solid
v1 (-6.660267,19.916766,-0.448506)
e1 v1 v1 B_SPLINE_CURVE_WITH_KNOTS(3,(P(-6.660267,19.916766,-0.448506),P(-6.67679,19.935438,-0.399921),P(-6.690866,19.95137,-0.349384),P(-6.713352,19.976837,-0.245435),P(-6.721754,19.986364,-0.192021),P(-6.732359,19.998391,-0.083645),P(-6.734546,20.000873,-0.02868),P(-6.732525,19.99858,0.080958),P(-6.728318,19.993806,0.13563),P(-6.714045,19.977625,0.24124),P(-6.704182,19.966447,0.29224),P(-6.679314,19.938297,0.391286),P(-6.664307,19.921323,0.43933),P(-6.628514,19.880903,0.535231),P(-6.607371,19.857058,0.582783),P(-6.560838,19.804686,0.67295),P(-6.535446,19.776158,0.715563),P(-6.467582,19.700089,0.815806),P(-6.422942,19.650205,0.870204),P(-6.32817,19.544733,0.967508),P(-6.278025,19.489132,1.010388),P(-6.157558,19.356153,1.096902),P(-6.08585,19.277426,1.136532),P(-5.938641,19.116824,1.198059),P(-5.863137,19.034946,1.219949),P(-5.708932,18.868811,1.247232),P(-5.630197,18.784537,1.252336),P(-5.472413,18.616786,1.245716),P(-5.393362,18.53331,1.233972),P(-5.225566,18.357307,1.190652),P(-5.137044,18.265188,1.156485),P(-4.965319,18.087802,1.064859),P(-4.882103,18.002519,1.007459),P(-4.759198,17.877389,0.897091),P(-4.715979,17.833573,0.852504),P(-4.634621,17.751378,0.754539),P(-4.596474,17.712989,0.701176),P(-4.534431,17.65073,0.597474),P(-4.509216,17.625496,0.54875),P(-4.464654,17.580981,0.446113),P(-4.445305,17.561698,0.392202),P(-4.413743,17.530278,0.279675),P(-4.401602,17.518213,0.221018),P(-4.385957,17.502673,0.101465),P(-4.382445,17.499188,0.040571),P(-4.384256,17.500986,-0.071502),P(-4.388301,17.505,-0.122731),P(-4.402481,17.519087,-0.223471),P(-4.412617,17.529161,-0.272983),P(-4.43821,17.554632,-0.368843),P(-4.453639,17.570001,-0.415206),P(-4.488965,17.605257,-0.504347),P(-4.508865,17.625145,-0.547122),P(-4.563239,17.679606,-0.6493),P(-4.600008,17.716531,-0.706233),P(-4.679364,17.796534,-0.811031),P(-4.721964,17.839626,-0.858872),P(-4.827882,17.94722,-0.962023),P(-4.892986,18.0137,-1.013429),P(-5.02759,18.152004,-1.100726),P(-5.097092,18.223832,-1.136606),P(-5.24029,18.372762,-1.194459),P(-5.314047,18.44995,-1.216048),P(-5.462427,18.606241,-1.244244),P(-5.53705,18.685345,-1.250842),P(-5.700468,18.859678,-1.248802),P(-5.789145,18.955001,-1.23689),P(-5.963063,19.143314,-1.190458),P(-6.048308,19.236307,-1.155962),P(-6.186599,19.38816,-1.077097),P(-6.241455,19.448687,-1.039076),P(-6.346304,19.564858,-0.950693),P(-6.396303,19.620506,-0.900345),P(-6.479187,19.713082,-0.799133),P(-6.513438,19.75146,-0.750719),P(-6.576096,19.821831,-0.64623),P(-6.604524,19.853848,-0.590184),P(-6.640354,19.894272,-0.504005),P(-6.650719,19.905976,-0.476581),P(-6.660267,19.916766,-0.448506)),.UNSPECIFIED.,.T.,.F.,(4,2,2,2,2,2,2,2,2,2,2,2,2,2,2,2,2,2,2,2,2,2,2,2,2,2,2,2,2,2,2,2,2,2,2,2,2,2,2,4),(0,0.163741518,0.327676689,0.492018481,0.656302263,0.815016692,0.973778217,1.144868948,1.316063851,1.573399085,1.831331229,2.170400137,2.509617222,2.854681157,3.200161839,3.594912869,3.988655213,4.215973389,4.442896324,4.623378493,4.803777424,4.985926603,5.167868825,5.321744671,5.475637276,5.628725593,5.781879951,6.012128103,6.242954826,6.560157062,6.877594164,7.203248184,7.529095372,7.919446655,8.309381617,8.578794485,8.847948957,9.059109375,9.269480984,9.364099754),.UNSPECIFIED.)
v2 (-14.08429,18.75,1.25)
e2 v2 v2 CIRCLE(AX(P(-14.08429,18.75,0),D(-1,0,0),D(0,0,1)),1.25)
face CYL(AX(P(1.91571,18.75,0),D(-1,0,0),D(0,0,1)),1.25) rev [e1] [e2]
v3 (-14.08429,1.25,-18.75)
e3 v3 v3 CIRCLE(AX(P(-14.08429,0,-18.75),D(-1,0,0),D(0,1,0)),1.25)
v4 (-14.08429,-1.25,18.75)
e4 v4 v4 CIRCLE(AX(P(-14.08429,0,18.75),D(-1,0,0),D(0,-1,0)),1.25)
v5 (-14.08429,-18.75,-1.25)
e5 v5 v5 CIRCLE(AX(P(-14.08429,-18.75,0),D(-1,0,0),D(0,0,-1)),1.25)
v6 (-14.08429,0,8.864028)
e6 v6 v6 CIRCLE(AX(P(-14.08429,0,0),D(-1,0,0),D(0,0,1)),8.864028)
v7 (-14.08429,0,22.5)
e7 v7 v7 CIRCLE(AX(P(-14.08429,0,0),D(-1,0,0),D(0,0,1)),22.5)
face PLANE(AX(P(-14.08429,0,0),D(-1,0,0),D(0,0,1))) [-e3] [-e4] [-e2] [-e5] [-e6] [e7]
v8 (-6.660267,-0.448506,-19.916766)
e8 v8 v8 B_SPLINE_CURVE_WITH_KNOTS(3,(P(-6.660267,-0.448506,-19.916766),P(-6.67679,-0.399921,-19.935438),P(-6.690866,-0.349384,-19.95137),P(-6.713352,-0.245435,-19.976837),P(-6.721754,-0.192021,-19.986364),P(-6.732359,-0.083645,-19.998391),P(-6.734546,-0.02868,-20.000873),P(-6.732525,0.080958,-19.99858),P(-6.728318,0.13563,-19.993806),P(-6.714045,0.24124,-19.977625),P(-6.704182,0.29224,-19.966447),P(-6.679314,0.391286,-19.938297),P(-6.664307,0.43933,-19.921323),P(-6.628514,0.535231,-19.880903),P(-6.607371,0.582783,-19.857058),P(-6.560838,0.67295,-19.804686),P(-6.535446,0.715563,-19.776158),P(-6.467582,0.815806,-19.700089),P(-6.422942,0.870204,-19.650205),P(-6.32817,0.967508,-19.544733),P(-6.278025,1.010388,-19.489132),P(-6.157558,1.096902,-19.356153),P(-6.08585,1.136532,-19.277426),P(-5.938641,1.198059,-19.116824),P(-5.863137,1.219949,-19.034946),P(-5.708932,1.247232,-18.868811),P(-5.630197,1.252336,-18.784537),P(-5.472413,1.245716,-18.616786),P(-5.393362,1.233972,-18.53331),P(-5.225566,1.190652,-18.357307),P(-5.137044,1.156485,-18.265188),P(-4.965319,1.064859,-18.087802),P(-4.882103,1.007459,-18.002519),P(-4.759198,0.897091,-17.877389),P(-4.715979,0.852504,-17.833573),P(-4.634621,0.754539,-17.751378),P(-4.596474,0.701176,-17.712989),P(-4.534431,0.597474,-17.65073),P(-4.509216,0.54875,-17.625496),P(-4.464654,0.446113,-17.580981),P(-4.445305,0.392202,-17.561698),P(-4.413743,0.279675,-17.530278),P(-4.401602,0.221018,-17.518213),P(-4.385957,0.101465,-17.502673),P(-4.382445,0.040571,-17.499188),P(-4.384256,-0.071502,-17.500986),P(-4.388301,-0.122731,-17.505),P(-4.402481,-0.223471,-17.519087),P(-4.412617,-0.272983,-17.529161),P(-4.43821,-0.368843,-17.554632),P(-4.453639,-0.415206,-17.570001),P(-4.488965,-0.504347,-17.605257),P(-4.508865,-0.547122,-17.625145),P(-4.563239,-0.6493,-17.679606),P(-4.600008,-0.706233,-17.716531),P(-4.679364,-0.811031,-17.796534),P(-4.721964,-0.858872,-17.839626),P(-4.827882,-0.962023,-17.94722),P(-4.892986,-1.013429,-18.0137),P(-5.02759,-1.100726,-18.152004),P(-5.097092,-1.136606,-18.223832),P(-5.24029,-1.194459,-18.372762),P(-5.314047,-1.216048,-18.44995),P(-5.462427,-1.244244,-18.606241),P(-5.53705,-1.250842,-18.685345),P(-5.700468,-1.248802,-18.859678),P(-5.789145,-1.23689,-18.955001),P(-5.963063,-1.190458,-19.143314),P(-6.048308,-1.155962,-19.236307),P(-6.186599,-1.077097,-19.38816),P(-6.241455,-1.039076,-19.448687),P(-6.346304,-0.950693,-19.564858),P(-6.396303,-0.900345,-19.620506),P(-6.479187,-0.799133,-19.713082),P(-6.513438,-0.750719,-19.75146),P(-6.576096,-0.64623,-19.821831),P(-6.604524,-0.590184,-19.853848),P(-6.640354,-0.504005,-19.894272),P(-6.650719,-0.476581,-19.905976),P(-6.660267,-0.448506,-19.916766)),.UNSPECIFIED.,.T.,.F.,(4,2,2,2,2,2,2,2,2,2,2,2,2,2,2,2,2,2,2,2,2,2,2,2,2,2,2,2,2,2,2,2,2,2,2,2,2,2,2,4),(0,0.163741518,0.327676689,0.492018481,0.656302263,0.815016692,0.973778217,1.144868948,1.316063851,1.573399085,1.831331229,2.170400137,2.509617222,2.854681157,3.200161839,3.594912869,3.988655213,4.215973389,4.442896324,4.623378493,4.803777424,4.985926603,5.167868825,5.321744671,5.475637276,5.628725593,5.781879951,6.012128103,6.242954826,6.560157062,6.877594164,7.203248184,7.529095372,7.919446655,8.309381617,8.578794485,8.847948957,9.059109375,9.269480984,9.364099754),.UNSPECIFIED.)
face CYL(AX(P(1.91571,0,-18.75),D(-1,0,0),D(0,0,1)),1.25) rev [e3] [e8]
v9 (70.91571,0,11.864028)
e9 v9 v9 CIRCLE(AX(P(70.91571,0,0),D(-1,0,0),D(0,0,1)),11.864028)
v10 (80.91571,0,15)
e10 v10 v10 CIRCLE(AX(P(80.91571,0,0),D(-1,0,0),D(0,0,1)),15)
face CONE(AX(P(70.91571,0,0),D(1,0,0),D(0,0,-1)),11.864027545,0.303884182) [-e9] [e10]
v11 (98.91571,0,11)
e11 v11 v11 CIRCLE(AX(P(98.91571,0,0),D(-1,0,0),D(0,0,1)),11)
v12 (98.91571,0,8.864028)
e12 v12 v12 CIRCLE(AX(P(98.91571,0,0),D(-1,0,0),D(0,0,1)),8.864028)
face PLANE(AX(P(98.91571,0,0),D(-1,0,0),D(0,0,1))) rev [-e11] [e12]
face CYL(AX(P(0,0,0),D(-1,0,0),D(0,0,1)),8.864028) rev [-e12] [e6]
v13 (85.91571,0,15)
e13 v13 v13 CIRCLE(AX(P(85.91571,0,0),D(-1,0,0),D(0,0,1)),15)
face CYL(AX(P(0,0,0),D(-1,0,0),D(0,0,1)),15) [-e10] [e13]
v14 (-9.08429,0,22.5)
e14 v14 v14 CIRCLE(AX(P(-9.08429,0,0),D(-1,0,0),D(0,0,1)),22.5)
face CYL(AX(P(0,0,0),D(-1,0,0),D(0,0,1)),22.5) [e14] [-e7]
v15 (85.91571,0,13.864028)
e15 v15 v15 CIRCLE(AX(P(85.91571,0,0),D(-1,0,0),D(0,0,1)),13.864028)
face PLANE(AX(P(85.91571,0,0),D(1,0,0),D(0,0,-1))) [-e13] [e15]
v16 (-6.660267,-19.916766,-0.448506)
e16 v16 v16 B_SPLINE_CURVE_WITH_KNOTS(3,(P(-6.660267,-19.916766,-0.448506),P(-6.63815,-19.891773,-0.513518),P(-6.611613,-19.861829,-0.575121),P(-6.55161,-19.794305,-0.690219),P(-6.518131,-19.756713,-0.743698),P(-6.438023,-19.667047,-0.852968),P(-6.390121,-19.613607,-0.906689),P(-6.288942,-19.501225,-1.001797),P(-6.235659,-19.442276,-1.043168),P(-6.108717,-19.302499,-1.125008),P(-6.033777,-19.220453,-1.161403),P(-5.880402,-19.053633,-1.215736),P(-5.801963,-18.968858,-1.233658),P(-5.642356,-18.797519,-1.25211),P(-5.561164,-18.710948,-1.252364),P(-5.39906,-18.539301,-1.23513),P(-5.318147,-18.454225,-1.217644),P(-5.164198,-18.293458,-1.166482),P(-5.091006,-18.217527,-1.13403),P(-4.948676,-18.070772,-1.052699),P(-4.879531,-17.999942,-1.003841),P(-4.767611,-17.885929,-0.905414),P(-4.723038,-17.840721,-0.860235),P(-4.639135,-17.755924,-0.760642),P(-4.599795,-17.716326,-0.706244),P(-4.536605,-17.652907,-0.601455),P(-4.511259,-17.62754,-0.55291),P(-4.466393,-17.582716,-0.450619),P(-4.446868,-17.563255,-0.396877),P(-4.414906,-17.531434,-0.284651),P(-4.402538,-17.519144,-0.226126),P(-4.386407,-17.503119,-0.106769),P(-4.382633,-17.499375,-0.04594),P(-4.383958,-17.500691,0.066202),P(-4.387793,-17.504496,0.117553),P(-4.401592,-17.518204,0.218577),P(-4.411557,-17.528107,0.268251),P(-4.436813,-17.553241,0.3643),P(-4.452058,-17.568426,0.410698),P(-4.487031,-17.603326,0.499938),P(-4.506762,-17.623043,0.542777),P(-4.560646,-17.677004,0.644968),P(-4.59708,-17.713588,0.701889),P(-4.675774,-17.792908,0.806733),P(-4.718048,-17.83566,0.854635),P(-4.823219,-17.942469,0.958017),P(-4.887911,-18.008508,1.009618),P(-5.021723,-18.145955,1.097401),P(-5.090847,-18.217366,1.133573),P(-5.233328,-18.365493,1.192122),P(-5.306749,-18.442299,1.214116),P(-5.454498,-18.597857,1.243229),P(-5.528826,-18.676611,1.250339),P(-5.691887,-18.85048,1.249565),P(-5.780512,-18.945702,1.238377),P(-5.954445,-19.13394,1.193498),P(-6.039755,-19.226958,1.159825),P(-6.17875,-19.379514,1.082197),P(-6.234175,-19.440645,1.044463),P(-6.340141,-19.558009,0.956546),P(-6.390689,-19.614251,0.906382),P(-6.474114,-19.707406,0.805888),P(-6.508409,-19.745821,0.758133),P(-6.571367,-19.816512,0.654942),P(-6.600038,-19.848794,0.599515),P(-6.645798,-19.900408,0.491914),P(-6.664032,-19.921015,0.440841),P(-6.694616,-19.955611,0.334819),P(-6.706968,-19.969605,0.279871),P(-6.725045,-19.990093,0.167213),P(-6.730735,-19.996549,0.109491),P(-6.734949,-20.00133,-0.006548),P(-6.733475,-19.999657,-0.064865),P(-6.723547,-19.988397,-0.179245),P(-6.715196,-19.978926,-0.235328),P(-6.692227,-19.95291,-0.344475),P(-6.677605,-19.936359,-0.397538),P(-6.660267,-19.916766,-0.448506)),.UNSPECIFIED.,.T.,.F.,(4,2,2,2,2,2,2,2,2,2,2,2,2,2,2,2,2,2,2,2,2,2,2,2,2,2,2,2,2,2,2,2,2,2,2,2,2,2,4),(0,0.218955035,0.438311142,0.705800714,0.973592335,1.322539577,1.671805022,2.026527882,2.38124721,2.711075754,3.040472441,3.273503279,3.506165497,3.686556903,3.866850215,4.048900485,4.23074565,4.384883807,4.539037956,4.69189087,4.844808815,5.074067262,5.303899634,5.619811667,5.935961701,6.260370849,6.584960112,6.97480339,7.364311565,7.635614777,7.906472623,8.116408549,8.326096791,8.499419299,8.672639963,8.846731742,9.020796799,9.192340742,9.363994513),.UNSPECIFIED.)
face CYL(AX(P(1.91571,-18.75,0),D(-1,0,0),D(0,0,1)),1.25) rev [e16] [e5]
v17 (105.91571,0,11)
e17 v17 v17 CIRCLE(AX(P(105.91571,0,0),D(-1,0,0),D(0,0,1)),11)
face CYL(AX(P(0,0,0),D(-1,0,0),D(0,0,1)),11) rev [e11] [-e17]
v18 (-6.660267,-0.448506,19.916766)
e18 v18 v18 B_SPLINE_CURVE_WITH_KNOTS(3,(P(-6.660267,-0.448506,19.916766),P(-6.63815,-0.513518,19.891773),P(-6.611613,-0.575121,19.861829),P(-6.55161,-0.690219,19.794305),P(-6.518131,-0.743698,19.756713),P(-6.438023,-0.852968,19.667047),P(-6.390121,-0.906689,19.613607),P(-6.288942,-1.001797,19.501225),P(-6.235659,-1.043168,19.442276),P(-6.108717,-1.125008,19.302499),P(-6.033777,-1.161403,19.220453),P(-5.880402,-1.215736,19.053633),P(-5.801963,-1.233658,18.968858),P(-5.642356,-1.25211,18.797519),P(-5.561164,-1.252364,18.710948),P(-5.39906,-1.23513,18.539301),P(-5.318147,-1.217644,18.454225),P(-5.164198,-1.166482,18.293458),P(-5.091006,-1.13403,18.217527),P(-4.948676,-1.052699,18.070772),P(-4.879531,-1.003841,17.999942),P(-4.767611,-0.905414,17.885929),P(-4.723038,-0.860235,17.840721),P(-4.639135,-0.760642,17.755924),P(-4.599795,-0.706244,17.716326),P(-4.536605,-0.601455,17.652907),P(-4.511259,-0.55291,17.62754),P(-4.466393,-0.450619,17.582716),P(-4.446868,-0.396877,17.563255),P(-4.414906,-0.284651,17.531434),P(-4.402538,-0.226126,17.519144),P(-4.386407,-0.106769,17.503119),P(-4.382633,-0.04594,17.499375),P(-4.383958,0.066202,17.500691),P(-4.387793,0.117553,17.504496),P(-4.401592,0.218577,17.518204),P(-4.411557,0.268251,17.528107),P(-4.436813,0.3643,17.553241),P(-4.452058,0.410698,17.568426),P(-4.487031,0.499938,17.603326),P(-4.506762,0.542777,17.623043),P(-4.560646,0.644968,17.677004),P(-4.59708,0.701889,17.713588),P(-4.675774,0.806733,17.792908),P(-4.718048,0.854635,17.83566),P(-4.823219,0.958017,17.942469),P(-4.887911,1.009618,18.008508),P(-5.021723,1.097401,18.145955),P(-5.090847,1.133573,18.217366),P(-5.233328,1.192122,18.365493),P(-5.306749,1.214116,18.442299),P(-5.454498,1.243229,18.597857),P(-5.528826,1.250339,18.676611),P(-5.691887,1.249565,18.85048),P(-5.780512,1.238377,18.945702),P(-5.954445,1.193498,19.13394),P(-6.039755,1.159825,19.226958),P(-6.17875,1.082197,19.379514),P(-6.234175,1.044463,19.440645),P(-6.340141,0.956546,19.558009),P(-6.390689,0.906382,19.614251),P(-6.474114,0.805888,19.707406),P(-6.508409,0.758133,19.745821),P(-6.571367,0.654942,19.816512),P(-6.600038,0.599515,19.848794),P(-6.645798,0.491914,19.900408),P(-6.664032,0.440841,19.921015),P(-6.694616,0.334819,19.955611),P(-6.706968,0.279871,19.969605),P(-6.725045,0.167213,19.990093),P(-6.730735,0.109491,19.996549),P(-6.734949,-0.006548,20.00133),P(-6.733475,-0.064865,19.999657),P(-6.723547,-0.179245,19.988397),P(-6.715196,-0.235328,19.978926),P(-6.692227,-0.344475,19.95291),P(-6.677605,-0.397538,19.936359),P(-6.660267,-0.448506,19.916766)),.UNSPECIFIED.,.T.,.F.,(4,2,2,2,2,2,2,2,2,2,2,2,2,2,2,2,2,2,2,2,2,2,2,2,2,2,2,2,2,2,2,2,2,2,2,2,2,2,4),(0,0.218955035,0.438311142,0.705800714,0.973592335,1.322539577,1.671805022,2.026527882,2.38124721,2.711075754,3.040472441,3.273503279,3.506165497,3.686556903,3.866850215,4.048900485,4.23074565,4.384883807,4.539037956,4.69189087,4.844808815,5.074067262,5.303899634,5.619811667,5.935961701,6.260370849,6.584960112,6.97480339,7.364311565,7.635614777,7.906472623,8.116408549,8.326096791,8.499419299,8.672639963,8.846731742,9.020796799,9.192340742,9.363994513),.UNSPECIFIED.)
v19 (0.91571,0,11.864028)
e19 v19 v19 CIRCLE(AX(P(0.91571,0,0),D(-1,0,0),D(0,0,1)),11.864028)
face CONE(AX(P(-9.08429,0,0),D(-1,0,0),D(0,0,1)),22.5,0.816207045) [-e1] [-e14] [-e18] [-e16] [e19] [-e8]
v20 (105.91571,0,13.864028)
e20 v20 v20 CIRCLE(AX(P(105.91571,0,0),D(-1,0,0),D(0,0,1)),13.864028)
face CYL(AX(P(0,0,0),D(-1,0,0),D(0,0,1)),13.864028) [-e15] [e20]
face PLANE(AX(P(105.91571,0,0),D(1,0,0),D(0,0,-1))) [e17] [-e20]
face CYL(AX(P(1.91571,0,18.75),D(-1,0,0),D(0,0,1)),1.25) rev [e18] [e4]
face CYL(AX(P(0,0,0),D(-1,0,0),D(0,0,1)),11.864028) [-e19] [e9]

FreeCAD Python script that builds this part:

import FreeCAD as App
import Part
import Sketcher


def add_polygon(sketch, points):
    """Adds a closed chain of lines whose ends are joined by coincident constraints."""
    first, n = sketch.GeometryCount, len(points)
    for a, b in zip(points, points[1:] + points[:1]):
        sketch.addGeometry(Part.LineSegment(App.Vector(*a, 0), App.Vector(*b, 0)), False)
    for i in range(n):
        sketch.addConstraint(Sketcher.Constraint("Coincident", first + i, 2, first + (i + 1) % n, 1))

doc = App.newDocument("Part")
body = doc.addObject("PartDesign::Body", "Body")

sketch1 = doc.addObject("Sketcher::SketchObject", "Sketch")
body.addObject(sketch1)
sketch1.AttachmentSupport = (doc.XY_Plane, [""])
sketch1.MapMode = "FlatFace"
add_polygon(sketch1, [(-14.1, 22.5), (-14.1, 8.9), (98.9, 8.9), (98.9, 11), (105.9, 11), (105.9, 13.9), (85.9, 13.9), (85.9, 15), (80.9, 15), (70.9, 11.9), (0.9, 11.9), (-9.1, 22.5)])
sketch1.addConstraint(Sketcher.Constraint("Vertical", 0))
sketch1.addConstraint(Sketcher.Constraint("Horizontal", 1))
sketch1.addConstraint(Sketcher.Constraint("Vertical", 2))
sketch1.addConstraint(Sketcher.Constraint("Horizontal", 3))
sketch1.addConstraint(Sketcher.Constraint("Vertical", 4))
sketch1.addConstraint(Sketcher.Constraint("Horizontal", 5))
sketch1.addConstraint(Sketcher.Constraint("Vertical", 6))
sketch1.addConstraint(Sketcher.Constraint("Horizontal", 7))
sketch1.addConstraint(Sketcher.Constraint("Horizontal", 9))
sketch1.addConstraint(Sketcher.Constraint("Horizontal", 11))
sketch1.addConstraint(Sketcher.Constraint("Equal", 7, 11))
sketch1.addConstraint(Sketcher.Constraint("DistanceX", 1, 1, 1, 2, 113.0))
sketch1.addConstraint(Sketcher.Constraint("DistanceX", 3, 1, 3, 2, 7.0))
sketch1.addConstraint(Sketcher.Constraint("DistanceX", 5, 2, 5, 1, 20.0))
sketch1.addConstraint(Sketcher.Constraint("DistanceX", 7, 2, 7, 1, 5.0))
sketch1.addConstraint(Sketcher.Constraint("DistanceX", 9, 2, 9, 1, 70.0))
sketch1.addConstraint(Sketcher.Constraint("DistanceY", -1, 1, 2, 2, 11.0))
sketch1.addConstraint(Sketcher.Constraint("DistanceY", -1, 1, 6, 2, 15.0))
sketch1.addConstraint(Sketcher.Constraint("DistanceY", 1, 2, 4, 2, 5.0))
sketch1.addConstraint(Sketcher.Constraint("DistanceX", 8, 2, 7, 2, 10.0))
sketch1.addConstraint(Sketcher.Constraint("DistanceY", 8, 2, 5, 2, 2.0))
sketch1.addConstraint(Sketcher.Constraint("DistanceY", -1, 1, 10, 2, 22.5))
sketch1.addConstraint(Sketcher.Constraint("DistanceY", 0, 2, 0, 1, 13.635972))
sketch1.addConstraint(Sketcher.Constraint("DistanceX", 0, 2, -1, 1, 14.08429))
revolution = doc.addObject("PartDesign::Revolution", "Revolution")
body.addObject(revolution)
revolution.Profile = sketch1
revolution.ReferenceAxis = (sketch1, ["H_Axis"])
revolution.Angle = 360

sketch2 = doc.addObject("Sketcher::SketchObject", "Sketch001")
body.addObject(sketch2)
sketch2.AttachmentSupport = (doc.YZ_Plane, [""])
sketch2.MapMode = "FlatFace"
sketch2.AttachmentOffset = App.Placement(App.Vector(0, 0, -14.08429), App.Rotation())
sketch2.addGeometry(Part.Circle(App.Vector(18.8, 0, 0), App.Vector(0, 0, 1), 1.2), False)
sketch2.addConstraint(Sketcher.Constraint("PointOnObject", 0, 3, -1))
sketch2.addConstraint(Sketcher.Constraint("Diameter", 0, 2.5))
sketch2.addConstraint(Sketcher.Constraint("DistanceX", -1, 1, 0, 3, 18.75))
pocket1 = doc.addObject("PartDesign::Pocket", "Pocket")
body.addObject(pocket1)
pocket1.Profile = sketch2
pocket1.Length = 16
pocket1.Reversed = True
doc.recompute()

polarpattern = doc.addObject("PartDesign::PolarPattern", "PolarPattern")
body.addObject(polarpattern)
polarpattern.Originals = [pocket1]
polarpattern.Axis = (doc.X_Axis, [""])
polarpattern.Angle = 360
polarpattern.Occurrences = 4
body.Tip = polarpattern

doc.recompute()
